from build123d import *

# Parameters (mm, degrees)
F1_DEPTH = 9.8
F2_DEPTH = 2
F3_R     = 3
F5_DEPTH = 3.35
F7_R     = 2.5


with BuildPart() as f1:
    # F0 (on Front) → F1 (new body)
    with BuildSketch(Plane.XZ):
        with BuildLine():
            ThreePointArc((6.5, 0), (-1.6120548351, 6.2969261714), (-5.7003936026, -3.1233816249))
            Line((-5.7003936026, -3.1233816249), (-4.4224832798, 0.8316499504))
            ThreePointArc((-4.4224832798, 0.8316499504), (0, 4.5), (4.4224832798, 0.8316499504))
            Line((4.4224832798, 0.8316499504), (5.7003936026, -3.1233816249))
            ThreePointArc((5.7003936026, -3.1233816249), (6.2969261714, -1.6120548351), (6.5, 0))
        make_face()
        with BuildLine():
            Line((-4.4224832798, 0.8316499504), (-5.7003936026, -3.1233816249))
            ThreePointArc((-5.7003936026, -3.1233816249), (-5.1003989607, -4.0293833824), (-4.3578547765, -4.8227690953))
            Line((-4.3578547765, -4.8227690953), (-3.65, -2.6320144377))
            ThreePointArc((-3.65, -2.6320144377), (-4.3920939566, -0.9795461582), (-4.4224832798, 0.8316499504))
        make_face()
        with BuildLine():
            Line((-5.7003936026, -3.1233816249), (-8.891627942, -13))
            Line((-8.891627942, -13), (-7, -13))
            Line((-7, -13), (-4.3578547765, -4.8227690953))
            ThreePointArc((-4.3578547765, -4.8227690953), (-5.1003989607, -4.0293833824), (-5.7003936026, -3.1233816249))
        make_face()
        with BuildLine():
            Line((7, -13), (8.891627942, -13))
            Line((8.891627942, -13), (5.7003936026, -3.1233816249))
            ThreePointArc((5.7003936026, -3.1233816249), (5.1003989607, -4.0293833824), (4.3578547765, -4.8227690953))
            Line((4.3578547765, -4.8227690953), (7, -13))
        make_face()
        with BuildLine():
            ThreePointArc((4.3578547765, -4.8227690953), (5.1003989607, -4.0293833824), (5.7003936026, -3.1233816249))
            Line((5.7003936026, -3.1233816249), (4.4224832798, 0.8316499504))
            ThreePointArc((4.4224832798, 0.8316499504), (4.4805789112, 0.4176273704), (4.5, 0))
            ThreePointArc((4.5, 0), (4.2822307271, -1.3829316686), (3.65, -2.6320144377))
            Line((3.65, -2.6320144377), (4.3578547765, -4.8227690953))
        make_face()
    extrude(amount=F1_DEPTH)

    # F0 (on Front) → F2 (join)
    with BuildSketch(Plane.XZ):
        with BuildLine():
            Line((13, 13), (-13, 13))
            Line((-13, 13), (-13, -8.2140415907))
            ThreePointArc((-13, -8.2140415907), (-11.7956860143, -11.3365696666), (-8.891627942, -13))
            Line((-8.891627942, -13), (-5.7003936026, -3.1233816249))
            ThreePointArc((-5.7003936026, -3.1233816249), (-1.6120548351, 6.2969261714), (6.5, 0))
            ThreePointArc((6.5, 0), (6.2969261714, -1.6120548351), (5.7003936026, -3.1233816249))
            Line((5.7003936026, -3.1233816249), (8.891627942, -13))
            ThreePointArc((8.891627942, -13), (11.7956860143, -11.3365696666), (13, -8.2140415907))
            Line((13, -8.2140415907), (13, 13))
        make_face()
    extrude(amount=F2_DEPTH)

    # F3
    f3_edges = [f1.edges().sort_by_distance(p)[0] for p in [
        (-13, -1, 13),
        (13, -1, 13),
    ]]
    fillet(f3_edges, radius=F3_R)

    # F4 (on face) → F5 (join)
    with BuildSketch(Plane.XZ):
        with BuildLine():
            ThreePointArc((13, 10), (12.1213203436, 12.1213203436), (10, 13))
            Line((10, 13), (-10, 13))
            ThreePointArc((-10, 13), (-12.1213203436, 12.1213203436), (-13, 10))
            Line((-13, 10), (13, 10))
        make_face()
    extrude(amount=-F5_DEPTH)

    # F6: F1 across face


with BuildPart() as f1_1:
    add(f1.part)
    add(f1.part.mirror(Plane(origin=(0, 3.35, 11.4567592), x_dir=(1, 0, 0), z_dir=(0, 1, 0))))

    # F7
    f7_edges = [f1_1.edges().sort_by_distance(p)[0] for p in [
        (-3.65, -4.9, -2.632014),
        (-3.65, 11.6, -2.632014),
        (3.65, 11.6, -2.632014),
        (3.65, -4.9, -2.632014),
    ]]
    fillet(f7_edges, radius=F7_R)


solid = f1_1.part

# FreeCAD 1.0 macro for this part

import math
import FreeCAD as App
import Part
import Sketcher


def edges_at(feature, points):
    """Names of the edges that pass closest to the given points."""
    edges = feature.Shape.Edges
    near = lambda p: min(range(len(edges)), key=lambda i: edges[i].distToShape(Part.Vertex(*p))[0])
    return sorted({f"Edge{near(p) + 1}" for p in points})

doc = App.newDocument("Part")
body = doc.addObject("PartDesign::Body", "Body")

# Sketch on XZ plane
sketch1 = body.newObject("Sketcher::SketchObject", "Sketch")
sketch1.AttachmentSupport = (doc.getObject("XZ_Plane"), [""])
sketch1.MapMode = "FlatFace"
sketch1.addGeometry(Part.ArcOfCircle(Part.Circle(App.Vector(0, 0, 0), App.Vector(0, 0, 1), 6.5), math.radians(0), math.radians(209)), False)
sketch1.addGeometry(Part.LineSegment(App.Vector(-5.7, -3.1, 0), App.Vector(-8.9, -13, 0)), False)
sketch1.addGeometry(Part.LineSegment(App.Vector(-8.9, -13, 0), App.Vector(-7, -13, 0)), False)
sketch1.addGeometry(Part.LineSegment(App.Vector(-7, -13, 0), App.Vector(-3.6, -2.6, 0)), False)
sketch1.addGeometry(Part.ArcOfCircle(Part.Circle(App.Vector(0, 0, 0), App.Vector(0, 0, 1), 4.5), math.radians(169), math.radians(216)), False)
sketch1.addGeometry(Part.ArcOfCircle(Part.Circle(App.Vector(0, 0, 0), App.Vector(0, 0, 1), 4.5), math.radians(11), math.radians(169)), False)
sketch1.addGeometry(Part.ArcOfCircle(Part.Circle(App.Vector(0, 0, 0), App.Vector(0, 0, 1), 4.5), math.radians(0), math.radians(10.65)), False)
sketch1.addGeometry(Part.ArcOfCircle(Part.Circle(App.Vector(0, 0, 0), App.Vector(0, 0, 1), 4.5), math.radians(-36), math.radians(0)), False)
sketch1.addGeometry(Part.LineSegment(App.Vector(3.6, -2.6, 0), App.Vector(7, -13, 0)), False)
sketch1.addGeometry(Part.LineSegment(App.Vector(7, -13, 0), App.Vector(8.9, -13, 0)), False)
sketch1.addGeometry(Part.LineSegment(App.Vector(8.9, -13, 0), App.Vector(5.7, -3.1, 0)), False)
sketch1.addGeometry(Part.ArcOfCircle(Part.Circle(App.Vector(0, 0, 0), App.Vector(0, 0, 1), 6.5), math.radians(-29), math.radians(0)), False)
sketch1.addConstraint(Sketcher.Constraint("Coincident", 0, 2, 1, 1))
sketch1.addConstraint(Sketcher.Constraint("Coincident", 1, 2, 2, 1))
sketch1.addConstraint(Sketcher.Constraint("Coincident", 2, 2, 3, 1))
sketch1.addConstraint(Sketcher.Constraint("Coincident", 3, 2, 4, 2))
sketch1.addConstraint(Sketcher.Constraint("Tangent", 4, 1, 5, 2))
sketch1.addConstraint(Sketcher.Constraint("Tangent", 5, 1, 6, 2))
sketch1.addConstraint(Sketcher.Constraint("Tangent", 6, 1, 7, 2))
sketch1.addConstraint(Sketcher.Constraint("Coincident", 7, 1, 8, 1))
sketch1.addConstraint(Sketcher.Constraint("Coincident", 8, 2, 9, 1))
sketch1.addConstraint(Sketcher.Constraint("Coincident", 9, 2, 10, 1))
sketch1.addConstraint(Sketcher.Constraint("Coincident", 10, 2, 11, 1))
sketch1.addConstraint(Sketcher.Constraint("Tangent", 11, 2, 0, 1))
sketch1.addConstraint(Sketcher.Constraint("Horizontal", 2))
sketch1.addConstraint(Sketcher.Constraint("Horizontal", 9))
sketch1.addConstraint(Sketcher.Constraint("Coincident", 0, 3, -1, 1))
sketch1.addConstraint(Sketcher.Constraint("Coincident", 4, 3, -1, 1))
sketch1.addConstraint(Sketcher.Constraint("Coincident", 6, 3, -1, 1))
sketch1.addConstraint(Sketcher.Constraint("Equal", 6, 7))
sketch1.addConstraint(Sketcher.Constraint("Equal", 0, 11))
sketch1.addConstraint(Sketcher.Constraint("Symmetric", 2, 2, 8, 2, -2))
sketch1.addConstraint(Sketcher.Constraint("PointOnObject", 6, 1, -1))
sketch1.addConstraint(Sketcher.Constraint("PointOnObject", 11, 2, -1))
sketch1.addConstraint(Sketcher.Constraint("Parallel", 1, 3))
sketch1.addConstraint(Sketcher.Constraint("Parallel", 8, 10))
sketch1.addConstraint(Sketcher.Constraint("Horizontal", 4, 1, 5, 1))
sketch1.addConstraint(Sketcher.Constraint("Horizontal", 3, 2, 7, 1))
sketch1.addConstraint(Sketcher.Constraint("Horizontal", 0, 2, 10, 2))
sketch1.addConstraint(Sketcher.Constraint("Radius", 0, 6.5))
sketch1.addConstraint(Sketcher.Constraint("Radius", 4, 4.5))
sketch1.addConstraint(Sketcher.Constraint("DistanceY", 1, 2, -1, 1, 13.0))
sketch1.addConstraint(Sketcher.Constraint("DistanceX", 2, 2, -1, 1, 7.0))
sketch1.addConstraint(Sketcher.Constraint("DistanceX", 3, 2, -1, 1, 3.65))
sketch1.addConstraint(Sketcher.Constraint("Distance", 1, 10.379382))
sketch1.addConstraint(Sketcher.Constraint("DistanceY", -1, 1, 4, 1, 0.83165))
pad1 = body.newObject("PartDesign::Pad", "Pad")
pad1.Profile = sketch1
pad1.Length = 9.8

# Sketch on XZ plane
sketch2 = body.newObject("Sketcher::SketchObject", "Sketch001")
sketch2.AttachmentSupport = (doc.getObject("XZ_Plane"), [""])
sketch2.MapMode = "FlatFace"
sketch2.addGeometry(Part.LineSegment(App.Vector(13, 13, 0), App.Vector(-13, 13, 0)), False)
sketch2.addGeometry(Part.LineSegment(App.Vector(-13, 13, 0), App.Vector(-13, -8.2, 0)), False)
sketch2.addGeometry(Part.ArcOfCircle(Part.Circle(App.Vector(-8, -8.1, 0), App.Vector(0, 0, 1), 5), math.radians(-178), math.radians(-100)), False)
sketch2.addGeometry(Part.LineSegment(App.Vector(-8.9, -13, 0), App.Vector(-5.7, -3.1, 0)), False)
sketch2.addGeometry(Part.ArcOfCircle(Part.Circle(App.Vector(0, 0, 0), App.Vector(0, 0, 1), 6.5), math.radians(0), math.radians(209)), False)
sketch2.addGeometry(Part.ArcOfCircle(Part.Circle(App.Vector(0, 0, 0), App.Vector(0, 0, 1), 6.5), math.radians(-29), math.radians(0)), False)
sketch2.addGeometry(Part.LineSegment(App.Vector(5.7, -3.1, 0), App.Vector(8.9, -13, 0)), False)
sketch2.addGeometry(Part.ArcOfCircle(Part.Circle(App.Vector(8, -8.1, 0), App.Vector(0, 0, 1), 5), math.radians(-80), math.radians(-2)), False)
sketch2.addGeometry(Part.LineSegment(App.Vector(13, -8.2, 0), App.Vector(13, 13, 0)), False)
sketch2.addConstraint(Sketcher.Constraint("Coincident", 0, 2, 1, 1))
sketch2.addConstraint(Sketcher.Constraint("Coincident", 1, 2, 2, 1))
sketch2.addConstraint(Sketcher.Constraint("Coincident", 2, 2, 3, 1))
sketch2.addConstraint(Sketcher.Constraint("Coincident", 3, 2, 4, 2))
sketch2.addConstraint(Sketcher.Constraint("Tangent", 4, 1, 5, 2))
sketch2.addConstraint(Sketcher.Constraint("Coincident", 5, 1, 6, 1))
sketch2.addConstraint(Sketcher.Constraint("Coincident", 6, 2, 7, 1))
sketch2.addConstraint(Sketcher.Constraint("Coincident", 7, 2, 8, 1))
sketch2.addConstraint(Sketcher.Constraint("Coincident", 8, 2, 0, 1))
sketch2.addConstraint(Sketcher.Constraint("Horizontal", 0))
sketch2.addConstraint(Sketcher.Constraint("Vertical", 1))
sketch2.addConstraint(Sketcher.Constraint("Vertical", 8))
sketch2.addConstraint(Sketcher.Constraint("Coincident", 4, 3, -1, 1))
sketch2.addConstraint(Sketcher.Constraint("Equal", 4, 5))
sketch2.addConstraint(Sketcher.Constraint("Equal", 2, 7))
sketch2.addConstraint(Sketcher.Constraint("Symmetric", 2, 3, 7, 3, -2))
sketch2.addConstraint(Sketcher.Constraint("PointOnObject", 4, 1, -1))
sketch2.addConstraint(Sketcher.Constraint("Horizontal", 3, 2, 5, 1))
sketch2.addConstraint(Sketcher.Constraint("Horizontal", 2, 2, 6, 2))
sketch2.addConstraint(Sketcher.Constraint("Horizontal", 1, 2, 7, 2))
sketch2.addConstraint(Sketcher.Constraint("Radius", 2, 5.0))
sketch2.addConstraint(Sketcher.Constraint("Radius", 4, 6.5))
sketch2.addConstraint(Sketcher.Constraint("DistanceX", 0, 2, 0, 1, 26.0))
sketch2.addConstraint(Sketcher.Constraint("DistanceY", -1, 1, 0, 2, 13.0))
sketch2.addConstraint(Sketcher.Constraint("DistanceY", 2, 2, -1, 1, 13.0))
sketch2.addConstraint(Sketcher.Constraint("DistanceY", 1, 2, 1, 1, 21.214042))
sketch2.addConstraint(Sketcher.Constraint("DistanceX", 2, 3, -1, 1, 8.001802))
sketch2.addConstraint(Sketcher.Constraint("Distance", 3, 10.379382))
pad2 = body.newObject("PartDesign::Pad", "Pad001")
pad2.Profile = sketch2
pad2.Length = 2
doc.recompute()

fillet = body.newObject("PartDesign::Fillet", "Fillet")
fillet.Base = (pad2, edges_at(pad2, [(-13, -1, 13), (13, -1, 13)]))
fillet.Radius = 3

# Sketch on XZ plane
sketch3 = body.newObject("Sketcher::SketchObject", "Sketch002")
sketch3.AttachmentSupport = (doc.getObject("XZ_Plane"), [""])
sketch3.MapMode = "FlatFace"
sketch3.addGeometry(Part.ArcOfCircle(Part.Circle(App.Vector(10, 10, 0), App.Vector(0, 0, 1), 3), math.radians(0), math.radians(90)), False)
sketch3.addGeometry(Part.LineSegment(App.Vector(10, 13, 0), App.Vector(-10, 13, 0)), False)
sketch3.addGeometry(Part.ArcOfCircle(Part.Circle(App.Vector(-10, 10, 0), App.Vector(0, 0, 1), 3), math.radians(90), math.radians(180)), False)
sketch3.addGeometry(Part.LineSegment(App.Vector(-13, 10, 0), App.Vector(13, 10, 0)), False)
sketch3.addConstraint(Sketcher.Constraint("Tangent", 0, 2, 1, 1))
sketch3.addConstraint(Sketcher.Constraint("Tangent", 1, 2, 2, 1))
sketch3.addConstraint(Sketcher.Constraint("Coincident", 2, 2, 3, 1))
sketch3.addConstraint(Sketcher.Constraint("Coincident", 3, 2, 0, 1))
sketch3.addConstraint(Sketcher.Constraint("Horizontal", 1))
sketch3.addConstraint(Sketcher.Constraint("Horizontal", 3))
sketch3.addConstraint(Sketcher.Constraint("Equal", 0, 2))
sketch3.addConstraint(Sketcher.Constraint("Horizontal", 0, 3, 2, 2))
sketch3.addConstraint(Sketcher.Constraint("Radius", 0, 3.0))
sketch3.addConstraint(Sketcher.Constraint("DistanceX", 1, 2, 1, 1, 20.0))
sketch3.addConstraint(Sketcher.Constraint("DistanceX", -1, 1, 0, 3, 10.0))
sketch3.addConstraint(Sketcher.Constraint("DistanceY", -1, 1, 0, 3, 10.0))
pad3 = body.newObject("PartDesign::Pad", "Pad002")
pad3.Profile = sketch3
pad3.Length = 3.35
pad3.Reversed = True
body2 = doc.addObject("PartDesign::Body", "Body001")
doc.recompute()

body2.BaseFeature = body
doc.recompute()

mirroring = doc.addObject("Part::Mirroring", "Mirroring")
mirroring.Source = body
mirroring.Base = App.Vector(0, 3.35, 11.456759)
mirroring.Normal = App.Vector(0, 1, 0)
body3 = doc.addObject("PartDesign::Body", "Body002")
body3.BaseFeature = mirroring
boolean = body2.newObject("PartDesign::Boolean", "Boolean")
boolean.Type = "Fuse"
boolean.addObjects([body3])
doc.recompute()

fillet2 = body2.newObject("PartDesign::Fillet", "Fillet001")
fillet2.Base = (boolean, edges_at(boolean, [
    (-3.65, -4.9, -2.632),
    (-3.65, 11.6, -2.632),
    (3.65, 11.6, -2.632),
    (3.65, -4.9, -2.632),
]))
fillet2.Radius = 2.5
mirroring.Visibility = False

doc.recompute()
